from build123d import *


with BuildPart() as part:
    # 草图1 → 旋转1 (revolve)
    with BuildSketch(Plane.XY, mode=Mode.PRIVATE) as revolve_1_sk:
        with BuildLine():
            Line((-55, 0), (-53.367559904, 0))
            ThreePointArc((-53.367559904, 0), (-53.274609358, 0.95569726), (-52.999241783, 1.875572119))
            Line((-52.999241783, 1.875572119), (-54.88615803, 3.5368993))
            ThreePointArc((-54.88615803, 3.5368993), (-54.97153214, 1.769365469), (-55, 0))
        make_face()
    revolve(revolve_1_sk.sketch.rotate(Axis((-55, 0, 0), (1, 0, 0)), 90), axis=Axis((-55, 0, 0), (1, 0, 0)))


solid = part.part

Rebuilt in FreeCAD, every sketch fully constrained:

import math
import FreeCAD as App
import Part
import Sketcher

V = App.Vector

doc = App.newDocument("Part")
params = doc.addObject("Spreadsheet::Sheet", "Params")
for row, (alias, value) in enumerate([
    ("sketch1_radius", "55 mm"),
    ("revolution_angle", "360 deg"),
], start=1):
    params.set(f"A{row}", alias)
    params.set(f"B{row}", "=" + value)
    params.setAlias(f"B{row}", alias)

body = doc.addObject("PartDesign::Body", "Body")

sketch1 = body.newObject("Sketcher::SketchObject", "Sketch")
sketch1.AttachmentSupport = (doc.getObject("XY_Plane"), [""])
sketch1.MapMode = "FlatFace"
sketch1.addGeometry([
    Part.LineSegment(V(-55, 0, 0), V(-53.4, 0, 0)),
    Part.ArcOfCircle(Part.Circle(V(-48.4, 0, 0), V(0, 0, 1), 5), math.radians(158), math.radians(180)),
    Part.LineSegment(V(-53, 1.9, 0), V(-54.9, 3.5, 0)),
    Part.ArcOfCircle(Part.Circle(V(0, 0, 0), V(0, 0, 1), 55), math.radians(176.31), math.radians(180)),
], False)
sketch1.addConstraint([
    Sketcher.Constraint("Coincident", 0, 2, 1, 2),
    Sketcher.Constraint("Coincident", 1, 1, 2, 1),
    Sketcher.Constraint("Coincident", 2, 2, 3, 1),
    Sketcher.Constraint("Coincident", 3, 2, 0, 1),
    Sketcher.Constraint("Horizontal", 0),
    Sketcher.Constraint("Coincident", 3, 3, -1, 1),
    Sketcher.Constraint("PointOnObject", 1, 3, -1),
    Sketcher.Constraint("PointOnObject", 0, 2, -1),
    Sketcher.Constraint("Radius", 3, 55.0),
    Sketcher.Constraint("Radius", 1, 4.959611),
    Sketcher.Constraint("DistanceX", 0, 1, 0, 2, 1.63244),
    Sketcher.Constraint("DistanceY", -1, 1, 2, 2, 3.536899),
    Sketcher.Constraint("DistanceX", 1, 1, -1, 1, 52.999242),
])
sketch1.setExpression("Constraints[8]", "Params.sketch1_radius")
revolution = body.newObject("PartDesign::Revolution", "Revolution")
revolution.Profile = sketch1
revolution.ReferenceAxis = (sketch1, ["H_Axis"])
revolution.setExpression("Angle", "Params.revolution_angle")

doc.recompute()
